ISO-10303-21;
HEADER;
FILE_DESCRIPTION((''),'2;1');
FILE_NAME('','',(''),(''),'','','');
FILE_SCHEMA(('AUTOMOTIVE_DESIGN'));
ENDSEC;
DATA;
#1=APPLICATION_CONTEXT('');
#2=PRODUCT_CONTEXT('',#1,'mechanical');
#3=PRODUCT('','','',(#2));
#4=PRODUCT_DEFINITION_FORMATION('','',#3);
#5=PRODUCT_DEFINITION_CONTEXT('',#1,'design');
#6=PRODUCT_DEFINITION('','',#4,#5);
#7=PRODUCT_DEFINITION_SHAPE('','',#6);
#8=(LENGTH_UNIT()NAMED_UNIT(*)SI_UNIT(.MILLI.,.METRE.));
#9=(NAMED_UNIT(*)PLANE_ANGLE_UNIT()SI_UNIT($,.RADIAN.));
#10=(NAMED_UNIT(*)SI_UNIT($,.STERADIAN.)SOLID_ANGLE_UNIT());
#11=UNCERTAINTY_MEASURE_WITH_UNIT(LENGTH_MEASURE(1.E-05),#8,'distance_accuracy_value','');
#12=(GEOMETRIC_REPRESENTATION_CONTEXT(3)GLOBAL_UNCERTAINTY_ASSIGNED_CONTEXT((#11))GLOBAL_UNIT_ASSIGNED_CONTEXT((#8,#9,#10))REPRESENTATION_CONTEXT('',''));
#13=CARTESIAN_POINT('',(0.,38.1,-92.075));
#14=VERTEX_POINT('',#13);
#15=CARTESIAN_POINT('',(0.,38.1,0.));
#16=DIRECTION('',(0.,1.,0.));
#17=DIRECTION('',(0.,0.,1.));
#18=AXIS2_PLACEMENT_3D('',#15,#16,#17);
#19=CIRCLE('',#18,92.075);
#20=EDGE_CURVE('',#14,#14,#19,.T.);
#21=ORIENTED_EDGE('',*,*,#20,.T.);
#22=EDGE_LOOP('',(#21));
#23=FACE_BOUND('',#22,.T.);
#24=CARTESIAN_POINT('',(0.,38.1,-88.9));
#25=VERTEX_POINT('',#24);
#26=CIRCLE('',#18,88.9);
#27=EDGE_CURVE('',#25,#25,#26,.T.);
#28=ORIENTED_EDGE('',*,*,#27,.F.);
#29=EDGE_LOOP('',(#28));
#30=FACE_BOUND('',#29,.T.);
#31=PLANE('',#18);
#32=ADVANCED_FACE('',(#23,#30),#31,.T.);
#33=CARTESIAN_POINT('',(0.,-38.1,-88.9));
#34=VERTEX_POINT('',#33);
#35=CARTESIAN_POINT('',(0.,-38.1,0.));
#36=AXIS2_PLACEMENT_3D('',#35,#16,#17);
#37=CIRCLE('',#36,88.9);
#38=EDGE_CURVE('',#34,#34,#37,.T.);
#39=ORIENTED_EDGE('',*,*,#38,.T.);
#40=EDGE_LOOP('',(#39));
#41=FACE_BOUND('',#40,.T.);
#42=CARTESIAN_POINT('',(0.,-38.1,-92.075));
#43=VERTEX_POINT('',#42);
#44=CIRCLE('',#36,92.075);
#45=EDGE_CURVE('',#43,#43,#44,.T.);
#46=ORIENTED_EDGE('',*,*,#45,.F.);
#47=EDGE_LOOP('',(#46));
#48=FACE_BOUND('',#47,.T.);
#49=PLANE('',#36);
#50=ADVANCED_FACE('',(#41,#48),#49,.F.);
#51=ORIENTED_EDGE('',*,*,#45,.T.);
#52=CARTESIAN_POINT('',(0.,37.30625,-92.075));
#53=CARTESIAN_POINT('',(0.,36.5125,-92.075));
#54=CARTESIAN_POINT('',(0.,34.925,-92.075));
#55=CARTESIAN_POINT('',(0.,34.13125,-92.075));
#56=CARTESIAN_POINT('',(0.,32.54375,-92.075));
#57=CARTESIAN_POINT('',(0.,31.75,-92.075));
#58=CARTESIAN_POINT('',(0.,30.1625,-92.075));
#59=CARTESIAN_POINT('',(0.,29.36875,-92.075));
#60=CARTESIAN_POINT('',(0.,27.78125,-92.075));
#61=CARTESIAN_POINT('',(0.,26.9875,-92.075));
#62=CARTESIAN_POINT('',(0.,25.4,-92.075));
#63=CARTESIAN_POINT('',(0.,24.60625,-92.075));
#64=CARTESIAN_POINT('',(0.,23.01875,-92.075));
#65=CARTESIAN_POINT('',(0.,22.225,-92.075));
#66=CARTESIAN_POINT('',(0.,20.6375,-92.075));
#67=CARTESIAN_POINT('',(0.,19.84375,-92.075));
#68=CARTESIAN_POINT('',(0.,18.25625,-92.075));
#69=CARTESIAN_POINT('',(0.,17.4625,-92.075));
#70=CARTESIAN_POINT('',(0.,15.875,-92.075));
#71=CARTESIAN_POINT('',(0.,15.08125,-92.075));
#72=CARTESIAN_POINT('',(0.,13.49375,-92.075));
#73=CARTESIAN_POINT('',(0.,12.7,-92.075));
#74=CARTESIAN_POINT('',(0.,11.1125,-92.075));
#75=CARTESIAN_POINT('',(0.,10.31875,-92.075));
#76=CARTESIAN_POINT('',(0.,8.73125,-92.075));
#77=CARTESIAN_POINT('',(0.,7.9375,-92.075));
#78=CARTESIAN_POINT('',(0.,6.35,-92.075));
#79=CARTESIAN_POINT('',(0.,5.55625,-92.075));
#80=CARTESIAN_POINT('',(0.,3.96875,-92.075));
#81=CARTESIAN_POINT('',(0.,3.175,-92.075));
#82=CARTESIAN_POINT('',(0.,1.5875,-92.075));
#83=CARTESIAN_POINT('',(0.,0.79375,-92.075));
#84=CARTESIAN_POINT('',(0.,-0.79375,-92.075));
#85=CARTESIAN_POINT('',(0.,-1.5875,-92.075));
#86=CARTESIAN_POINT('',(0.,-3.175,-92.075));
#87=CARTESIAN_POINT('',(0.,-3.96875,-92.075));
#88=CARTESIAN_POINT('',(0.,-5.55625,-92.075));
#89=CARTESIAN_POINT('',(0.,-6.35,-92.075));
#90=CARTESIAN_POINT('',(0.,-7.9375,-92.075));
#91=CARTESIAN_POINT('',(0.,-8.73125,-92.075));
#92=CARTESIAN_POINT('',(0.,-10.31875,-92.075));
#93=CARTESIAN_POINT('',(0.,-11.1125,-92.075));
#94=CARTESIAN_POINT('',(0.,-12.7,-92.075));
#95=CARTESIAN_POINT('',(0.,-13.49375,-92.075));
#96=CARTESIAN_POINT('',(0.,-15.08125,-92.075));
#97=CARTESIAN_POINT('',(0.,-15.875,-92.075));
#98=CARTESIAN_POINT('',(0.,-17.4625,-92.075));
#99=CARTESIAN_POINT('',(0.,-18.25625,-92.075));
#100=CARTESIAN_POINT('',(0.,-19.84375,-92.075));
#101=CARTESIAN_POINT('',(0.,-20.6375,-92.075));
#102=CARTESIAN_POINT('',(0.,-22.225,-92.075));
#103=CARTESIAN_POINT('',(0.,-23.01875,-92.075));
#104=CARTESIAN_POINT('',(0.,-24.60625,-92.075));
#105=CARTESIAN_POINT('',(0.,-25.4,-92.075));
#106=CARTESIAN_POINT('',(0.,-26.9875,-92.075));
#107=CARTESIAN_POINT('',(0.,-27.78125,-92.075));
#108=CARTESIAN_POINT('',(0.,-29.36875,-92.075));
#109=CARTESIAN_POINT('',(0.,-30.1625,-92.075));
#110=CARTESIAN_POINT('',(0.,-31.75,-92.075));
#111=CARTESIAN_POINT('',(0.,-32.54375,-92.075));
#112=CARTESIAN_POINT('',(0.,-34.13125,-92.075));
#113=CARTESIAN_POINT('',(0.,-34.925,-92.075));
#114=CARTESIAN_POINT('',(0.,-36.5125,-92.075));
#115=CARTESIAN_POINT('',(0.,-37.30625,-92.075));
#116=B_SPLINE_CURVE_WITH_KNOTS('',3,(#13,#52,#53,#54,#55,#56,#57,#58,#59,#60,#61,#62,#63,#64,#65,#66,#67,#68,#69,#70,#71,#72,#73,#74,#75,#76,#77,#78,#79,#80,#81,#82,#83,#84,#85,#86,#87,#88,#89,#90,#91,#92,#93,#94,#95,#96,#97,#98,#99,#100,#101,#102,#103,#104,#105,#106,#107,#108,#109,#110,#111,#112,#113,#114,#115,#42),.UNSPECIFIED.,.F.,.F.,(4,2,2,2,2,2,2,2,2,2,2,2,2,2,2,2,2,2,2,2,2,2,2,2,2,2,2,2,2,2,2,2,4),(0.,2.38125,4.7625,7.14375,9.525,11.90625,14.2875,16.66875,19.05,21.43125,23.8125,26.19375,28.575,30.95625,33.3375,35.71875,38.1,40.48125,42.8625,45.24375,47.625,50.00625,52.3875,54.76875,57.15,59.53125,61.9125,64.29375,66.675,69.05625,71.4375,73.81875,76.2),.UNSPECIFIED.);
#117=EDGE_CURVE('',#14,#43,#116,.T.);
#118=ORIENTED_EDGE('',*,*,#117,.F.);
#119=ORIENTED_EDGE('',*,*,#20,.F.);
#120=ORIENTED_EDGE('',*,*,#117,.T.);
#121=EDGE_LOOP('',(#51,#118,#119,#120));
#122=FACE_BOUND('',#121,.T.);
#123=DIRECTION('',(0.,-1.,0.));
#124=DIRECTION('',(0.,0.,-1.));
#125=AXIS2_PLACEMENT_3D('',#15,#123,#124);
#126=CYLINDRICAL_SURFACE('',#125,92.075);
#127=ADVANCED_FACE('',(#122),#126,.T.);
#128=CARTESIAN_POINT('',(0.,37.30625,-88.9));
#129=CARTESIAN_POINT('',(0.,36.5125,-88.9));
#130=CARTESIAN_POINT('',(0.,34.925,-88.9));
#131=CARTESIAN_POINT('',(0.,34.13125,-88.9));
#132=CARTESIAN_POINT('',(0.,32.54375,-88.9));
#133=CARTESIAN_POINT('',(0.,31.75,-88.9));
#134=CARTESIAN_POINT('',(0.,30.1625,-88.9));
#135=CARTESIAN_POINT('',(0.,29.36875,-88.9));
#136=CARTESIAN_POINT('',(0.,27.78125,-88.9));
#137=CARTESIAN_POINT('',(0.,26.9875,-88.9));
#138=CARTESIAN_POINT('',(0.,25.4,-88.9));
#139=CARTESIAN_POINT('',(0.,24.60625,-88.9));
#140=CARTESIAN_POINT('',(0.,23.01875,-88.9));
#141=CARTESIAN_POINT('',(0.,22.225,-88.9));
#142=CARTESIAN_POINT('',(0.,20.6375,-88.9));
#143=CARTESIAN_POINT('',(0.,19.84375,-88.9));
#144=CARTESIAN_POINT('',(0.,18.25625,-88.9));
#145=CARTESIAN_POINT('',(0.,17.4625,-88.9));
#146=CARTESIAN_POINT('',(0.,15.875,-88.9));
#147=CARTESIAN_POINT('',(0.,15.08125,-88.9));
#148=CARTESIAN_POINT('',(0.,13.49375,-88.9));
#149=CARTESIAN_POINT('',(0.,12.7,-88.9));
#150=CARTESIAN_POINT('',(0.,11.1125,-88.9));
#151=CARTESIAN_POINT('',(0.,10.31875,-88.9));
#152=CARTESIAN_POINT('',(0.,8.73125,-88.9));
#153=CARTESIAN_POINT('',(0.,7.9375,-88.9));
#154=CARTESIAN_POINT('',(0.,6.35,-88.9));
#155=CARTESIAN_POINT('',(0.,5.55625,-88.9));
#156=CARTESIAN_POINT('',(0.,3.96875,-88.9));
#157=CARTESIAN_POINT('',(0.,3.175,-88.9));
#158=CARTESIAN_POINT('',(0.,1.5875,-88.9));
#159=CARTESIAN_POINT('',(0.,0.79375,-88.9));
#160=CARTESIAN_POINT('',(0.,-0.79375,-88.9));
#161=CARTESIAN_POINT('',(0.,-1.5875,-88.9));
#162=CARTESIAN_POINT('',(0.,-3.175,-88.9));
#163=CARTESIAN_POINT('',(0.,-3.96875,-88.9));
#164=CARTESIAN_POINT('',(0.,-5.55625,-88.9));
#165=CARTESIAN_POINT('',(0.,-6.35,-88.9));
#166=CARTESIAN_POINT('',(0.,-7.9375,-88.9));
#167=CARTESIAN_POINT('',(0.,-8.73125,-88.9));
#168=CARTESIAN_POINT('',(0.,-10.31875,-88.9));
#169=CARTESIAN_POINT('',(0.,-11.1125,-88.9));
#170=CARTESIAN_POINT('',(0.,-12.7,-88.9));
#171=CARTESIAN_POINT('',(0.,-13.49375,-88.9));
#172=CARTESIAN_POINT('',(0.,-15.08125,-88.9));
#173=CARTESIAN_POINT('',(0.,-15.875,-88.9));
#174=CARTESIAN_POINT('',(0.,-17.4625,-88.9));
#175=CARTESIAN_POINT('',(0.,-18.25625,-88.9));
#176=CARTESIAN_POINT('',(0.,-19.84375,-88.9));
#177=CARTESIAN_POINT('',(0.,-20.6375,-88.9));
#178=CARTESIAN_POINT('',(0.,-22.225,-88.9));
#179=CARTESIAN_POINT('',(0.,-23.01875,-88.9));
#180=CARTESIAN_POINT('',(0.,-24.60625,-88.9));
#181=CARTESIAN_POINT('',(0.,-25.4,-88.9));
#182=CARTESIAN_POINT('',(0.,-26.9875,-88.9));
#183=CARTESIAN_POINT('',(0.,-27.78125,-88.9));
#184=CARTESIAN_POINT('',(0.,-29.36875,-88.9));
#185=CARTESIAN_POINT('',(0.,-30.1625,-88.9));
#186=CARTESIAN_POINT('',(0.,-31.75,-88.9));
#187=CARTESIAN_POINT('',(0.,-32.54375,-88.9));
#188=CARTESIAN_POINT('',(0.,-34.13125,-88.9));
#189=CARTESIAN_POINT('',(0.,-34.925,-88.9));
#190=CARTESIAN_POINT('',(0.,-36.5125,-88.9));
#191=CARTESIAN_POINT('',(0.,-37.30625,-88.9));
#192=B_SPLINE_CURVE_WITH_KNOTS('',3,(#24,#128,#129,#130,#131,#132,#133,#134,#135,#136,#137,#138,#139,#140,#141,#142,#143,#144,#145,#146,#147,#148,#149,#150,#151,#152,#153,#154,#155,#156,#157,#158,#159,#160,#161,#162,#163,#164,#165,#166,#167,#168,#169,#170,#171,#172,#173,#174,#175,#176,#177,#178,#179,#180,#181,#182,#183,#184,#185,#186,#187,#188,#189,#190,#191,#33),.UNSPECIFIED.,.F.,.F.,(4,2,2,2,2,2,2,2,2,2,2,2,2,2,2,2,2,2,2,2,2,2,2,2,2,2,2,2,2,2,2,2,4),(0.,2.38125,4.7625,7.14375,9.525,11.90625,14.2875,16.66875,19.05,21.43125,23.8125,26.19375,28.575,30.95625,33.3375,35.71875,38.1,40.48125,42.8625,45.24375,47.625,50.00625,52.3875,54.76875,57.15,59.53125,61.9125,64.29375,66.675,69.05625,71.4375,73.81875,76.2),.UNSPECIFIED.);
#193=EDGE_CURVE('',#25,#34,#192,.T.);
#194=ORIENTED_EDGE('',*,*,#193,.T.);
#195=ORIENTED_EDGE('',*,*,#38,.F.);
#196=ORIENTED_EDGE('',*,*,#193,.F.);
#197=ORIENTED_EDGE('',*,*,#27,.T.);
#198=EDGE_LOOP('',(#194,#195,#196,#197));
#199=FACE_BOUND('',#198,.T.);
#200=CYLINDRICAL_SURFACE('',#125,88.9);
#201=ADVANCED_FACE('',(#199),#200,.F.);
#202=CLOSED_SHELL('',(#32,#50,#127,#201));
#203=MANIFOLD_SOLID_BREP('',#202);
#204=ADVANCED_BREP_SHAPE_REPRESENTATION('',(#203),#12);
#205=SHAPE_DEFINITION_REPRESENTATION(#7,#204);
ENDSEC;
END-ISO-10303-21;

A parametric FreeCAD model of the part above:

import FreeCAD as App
import Part
import Sketcher

V = App.Vector
Q = App.Units.Quantity

doc = App.newDocument("Part")
params = doc.addObject("Spreadsheet::Sheet", "Params")
for row, (alias, value) in enumerate([
    ("sketch1_diameter", "7 in"),
    ("sketch1_diameter2", "7.25 in"),
    ("pad1_length", "3 in"),
], start=1):
    params.set(f"A{row}", alias)
    params.set(f"B{row}", "=" + value)
    params.setAlias(f"B{row}", alias)

body = doc.addObject("PartDesign::Body", "Body")

# Sketch on XZ plane
sketch1 = body.newObject("Sketcher::SketchObject", "Sketch")
sketch1.AttachmentSupport = (doc.getObject("XZ_Plane"), [""])
sketch1.MapMode = "FlatFace"
sketch1.addGeometry([
    Part.Circle(V(0, 0, 0), V(0, 0, 1), 92.075),
    Part.Circle(V(0, 0, 0), V(0, 0, 1), 88.9),
], False)
sketch1.addConstraint([
    Sketcher.Constraint("Coincident", 0, 3, -1, 1),
    Sketcher.Constraint("Coincident", 1, 3, -1, 1),
    Sketcher.Constraint("Diameter", 1, Q("7 in")),
    Sketcher.Constraint("Diameter", 0, Q("7.25 in")),
])
sketch1.setExpression("Constraints[2]", "Params.sketch1_diameter")
sketch1.setExpression("Constraints[3]", "Params.sketch1_diameter2")
pad1 = body.newObject("PartDesign::Pad", "Pad")
pad1.Profile = sketch1
pad1.setExpression("Length", "Params.pad1_length")
pad1.Midplane = True

doc.recompute()
